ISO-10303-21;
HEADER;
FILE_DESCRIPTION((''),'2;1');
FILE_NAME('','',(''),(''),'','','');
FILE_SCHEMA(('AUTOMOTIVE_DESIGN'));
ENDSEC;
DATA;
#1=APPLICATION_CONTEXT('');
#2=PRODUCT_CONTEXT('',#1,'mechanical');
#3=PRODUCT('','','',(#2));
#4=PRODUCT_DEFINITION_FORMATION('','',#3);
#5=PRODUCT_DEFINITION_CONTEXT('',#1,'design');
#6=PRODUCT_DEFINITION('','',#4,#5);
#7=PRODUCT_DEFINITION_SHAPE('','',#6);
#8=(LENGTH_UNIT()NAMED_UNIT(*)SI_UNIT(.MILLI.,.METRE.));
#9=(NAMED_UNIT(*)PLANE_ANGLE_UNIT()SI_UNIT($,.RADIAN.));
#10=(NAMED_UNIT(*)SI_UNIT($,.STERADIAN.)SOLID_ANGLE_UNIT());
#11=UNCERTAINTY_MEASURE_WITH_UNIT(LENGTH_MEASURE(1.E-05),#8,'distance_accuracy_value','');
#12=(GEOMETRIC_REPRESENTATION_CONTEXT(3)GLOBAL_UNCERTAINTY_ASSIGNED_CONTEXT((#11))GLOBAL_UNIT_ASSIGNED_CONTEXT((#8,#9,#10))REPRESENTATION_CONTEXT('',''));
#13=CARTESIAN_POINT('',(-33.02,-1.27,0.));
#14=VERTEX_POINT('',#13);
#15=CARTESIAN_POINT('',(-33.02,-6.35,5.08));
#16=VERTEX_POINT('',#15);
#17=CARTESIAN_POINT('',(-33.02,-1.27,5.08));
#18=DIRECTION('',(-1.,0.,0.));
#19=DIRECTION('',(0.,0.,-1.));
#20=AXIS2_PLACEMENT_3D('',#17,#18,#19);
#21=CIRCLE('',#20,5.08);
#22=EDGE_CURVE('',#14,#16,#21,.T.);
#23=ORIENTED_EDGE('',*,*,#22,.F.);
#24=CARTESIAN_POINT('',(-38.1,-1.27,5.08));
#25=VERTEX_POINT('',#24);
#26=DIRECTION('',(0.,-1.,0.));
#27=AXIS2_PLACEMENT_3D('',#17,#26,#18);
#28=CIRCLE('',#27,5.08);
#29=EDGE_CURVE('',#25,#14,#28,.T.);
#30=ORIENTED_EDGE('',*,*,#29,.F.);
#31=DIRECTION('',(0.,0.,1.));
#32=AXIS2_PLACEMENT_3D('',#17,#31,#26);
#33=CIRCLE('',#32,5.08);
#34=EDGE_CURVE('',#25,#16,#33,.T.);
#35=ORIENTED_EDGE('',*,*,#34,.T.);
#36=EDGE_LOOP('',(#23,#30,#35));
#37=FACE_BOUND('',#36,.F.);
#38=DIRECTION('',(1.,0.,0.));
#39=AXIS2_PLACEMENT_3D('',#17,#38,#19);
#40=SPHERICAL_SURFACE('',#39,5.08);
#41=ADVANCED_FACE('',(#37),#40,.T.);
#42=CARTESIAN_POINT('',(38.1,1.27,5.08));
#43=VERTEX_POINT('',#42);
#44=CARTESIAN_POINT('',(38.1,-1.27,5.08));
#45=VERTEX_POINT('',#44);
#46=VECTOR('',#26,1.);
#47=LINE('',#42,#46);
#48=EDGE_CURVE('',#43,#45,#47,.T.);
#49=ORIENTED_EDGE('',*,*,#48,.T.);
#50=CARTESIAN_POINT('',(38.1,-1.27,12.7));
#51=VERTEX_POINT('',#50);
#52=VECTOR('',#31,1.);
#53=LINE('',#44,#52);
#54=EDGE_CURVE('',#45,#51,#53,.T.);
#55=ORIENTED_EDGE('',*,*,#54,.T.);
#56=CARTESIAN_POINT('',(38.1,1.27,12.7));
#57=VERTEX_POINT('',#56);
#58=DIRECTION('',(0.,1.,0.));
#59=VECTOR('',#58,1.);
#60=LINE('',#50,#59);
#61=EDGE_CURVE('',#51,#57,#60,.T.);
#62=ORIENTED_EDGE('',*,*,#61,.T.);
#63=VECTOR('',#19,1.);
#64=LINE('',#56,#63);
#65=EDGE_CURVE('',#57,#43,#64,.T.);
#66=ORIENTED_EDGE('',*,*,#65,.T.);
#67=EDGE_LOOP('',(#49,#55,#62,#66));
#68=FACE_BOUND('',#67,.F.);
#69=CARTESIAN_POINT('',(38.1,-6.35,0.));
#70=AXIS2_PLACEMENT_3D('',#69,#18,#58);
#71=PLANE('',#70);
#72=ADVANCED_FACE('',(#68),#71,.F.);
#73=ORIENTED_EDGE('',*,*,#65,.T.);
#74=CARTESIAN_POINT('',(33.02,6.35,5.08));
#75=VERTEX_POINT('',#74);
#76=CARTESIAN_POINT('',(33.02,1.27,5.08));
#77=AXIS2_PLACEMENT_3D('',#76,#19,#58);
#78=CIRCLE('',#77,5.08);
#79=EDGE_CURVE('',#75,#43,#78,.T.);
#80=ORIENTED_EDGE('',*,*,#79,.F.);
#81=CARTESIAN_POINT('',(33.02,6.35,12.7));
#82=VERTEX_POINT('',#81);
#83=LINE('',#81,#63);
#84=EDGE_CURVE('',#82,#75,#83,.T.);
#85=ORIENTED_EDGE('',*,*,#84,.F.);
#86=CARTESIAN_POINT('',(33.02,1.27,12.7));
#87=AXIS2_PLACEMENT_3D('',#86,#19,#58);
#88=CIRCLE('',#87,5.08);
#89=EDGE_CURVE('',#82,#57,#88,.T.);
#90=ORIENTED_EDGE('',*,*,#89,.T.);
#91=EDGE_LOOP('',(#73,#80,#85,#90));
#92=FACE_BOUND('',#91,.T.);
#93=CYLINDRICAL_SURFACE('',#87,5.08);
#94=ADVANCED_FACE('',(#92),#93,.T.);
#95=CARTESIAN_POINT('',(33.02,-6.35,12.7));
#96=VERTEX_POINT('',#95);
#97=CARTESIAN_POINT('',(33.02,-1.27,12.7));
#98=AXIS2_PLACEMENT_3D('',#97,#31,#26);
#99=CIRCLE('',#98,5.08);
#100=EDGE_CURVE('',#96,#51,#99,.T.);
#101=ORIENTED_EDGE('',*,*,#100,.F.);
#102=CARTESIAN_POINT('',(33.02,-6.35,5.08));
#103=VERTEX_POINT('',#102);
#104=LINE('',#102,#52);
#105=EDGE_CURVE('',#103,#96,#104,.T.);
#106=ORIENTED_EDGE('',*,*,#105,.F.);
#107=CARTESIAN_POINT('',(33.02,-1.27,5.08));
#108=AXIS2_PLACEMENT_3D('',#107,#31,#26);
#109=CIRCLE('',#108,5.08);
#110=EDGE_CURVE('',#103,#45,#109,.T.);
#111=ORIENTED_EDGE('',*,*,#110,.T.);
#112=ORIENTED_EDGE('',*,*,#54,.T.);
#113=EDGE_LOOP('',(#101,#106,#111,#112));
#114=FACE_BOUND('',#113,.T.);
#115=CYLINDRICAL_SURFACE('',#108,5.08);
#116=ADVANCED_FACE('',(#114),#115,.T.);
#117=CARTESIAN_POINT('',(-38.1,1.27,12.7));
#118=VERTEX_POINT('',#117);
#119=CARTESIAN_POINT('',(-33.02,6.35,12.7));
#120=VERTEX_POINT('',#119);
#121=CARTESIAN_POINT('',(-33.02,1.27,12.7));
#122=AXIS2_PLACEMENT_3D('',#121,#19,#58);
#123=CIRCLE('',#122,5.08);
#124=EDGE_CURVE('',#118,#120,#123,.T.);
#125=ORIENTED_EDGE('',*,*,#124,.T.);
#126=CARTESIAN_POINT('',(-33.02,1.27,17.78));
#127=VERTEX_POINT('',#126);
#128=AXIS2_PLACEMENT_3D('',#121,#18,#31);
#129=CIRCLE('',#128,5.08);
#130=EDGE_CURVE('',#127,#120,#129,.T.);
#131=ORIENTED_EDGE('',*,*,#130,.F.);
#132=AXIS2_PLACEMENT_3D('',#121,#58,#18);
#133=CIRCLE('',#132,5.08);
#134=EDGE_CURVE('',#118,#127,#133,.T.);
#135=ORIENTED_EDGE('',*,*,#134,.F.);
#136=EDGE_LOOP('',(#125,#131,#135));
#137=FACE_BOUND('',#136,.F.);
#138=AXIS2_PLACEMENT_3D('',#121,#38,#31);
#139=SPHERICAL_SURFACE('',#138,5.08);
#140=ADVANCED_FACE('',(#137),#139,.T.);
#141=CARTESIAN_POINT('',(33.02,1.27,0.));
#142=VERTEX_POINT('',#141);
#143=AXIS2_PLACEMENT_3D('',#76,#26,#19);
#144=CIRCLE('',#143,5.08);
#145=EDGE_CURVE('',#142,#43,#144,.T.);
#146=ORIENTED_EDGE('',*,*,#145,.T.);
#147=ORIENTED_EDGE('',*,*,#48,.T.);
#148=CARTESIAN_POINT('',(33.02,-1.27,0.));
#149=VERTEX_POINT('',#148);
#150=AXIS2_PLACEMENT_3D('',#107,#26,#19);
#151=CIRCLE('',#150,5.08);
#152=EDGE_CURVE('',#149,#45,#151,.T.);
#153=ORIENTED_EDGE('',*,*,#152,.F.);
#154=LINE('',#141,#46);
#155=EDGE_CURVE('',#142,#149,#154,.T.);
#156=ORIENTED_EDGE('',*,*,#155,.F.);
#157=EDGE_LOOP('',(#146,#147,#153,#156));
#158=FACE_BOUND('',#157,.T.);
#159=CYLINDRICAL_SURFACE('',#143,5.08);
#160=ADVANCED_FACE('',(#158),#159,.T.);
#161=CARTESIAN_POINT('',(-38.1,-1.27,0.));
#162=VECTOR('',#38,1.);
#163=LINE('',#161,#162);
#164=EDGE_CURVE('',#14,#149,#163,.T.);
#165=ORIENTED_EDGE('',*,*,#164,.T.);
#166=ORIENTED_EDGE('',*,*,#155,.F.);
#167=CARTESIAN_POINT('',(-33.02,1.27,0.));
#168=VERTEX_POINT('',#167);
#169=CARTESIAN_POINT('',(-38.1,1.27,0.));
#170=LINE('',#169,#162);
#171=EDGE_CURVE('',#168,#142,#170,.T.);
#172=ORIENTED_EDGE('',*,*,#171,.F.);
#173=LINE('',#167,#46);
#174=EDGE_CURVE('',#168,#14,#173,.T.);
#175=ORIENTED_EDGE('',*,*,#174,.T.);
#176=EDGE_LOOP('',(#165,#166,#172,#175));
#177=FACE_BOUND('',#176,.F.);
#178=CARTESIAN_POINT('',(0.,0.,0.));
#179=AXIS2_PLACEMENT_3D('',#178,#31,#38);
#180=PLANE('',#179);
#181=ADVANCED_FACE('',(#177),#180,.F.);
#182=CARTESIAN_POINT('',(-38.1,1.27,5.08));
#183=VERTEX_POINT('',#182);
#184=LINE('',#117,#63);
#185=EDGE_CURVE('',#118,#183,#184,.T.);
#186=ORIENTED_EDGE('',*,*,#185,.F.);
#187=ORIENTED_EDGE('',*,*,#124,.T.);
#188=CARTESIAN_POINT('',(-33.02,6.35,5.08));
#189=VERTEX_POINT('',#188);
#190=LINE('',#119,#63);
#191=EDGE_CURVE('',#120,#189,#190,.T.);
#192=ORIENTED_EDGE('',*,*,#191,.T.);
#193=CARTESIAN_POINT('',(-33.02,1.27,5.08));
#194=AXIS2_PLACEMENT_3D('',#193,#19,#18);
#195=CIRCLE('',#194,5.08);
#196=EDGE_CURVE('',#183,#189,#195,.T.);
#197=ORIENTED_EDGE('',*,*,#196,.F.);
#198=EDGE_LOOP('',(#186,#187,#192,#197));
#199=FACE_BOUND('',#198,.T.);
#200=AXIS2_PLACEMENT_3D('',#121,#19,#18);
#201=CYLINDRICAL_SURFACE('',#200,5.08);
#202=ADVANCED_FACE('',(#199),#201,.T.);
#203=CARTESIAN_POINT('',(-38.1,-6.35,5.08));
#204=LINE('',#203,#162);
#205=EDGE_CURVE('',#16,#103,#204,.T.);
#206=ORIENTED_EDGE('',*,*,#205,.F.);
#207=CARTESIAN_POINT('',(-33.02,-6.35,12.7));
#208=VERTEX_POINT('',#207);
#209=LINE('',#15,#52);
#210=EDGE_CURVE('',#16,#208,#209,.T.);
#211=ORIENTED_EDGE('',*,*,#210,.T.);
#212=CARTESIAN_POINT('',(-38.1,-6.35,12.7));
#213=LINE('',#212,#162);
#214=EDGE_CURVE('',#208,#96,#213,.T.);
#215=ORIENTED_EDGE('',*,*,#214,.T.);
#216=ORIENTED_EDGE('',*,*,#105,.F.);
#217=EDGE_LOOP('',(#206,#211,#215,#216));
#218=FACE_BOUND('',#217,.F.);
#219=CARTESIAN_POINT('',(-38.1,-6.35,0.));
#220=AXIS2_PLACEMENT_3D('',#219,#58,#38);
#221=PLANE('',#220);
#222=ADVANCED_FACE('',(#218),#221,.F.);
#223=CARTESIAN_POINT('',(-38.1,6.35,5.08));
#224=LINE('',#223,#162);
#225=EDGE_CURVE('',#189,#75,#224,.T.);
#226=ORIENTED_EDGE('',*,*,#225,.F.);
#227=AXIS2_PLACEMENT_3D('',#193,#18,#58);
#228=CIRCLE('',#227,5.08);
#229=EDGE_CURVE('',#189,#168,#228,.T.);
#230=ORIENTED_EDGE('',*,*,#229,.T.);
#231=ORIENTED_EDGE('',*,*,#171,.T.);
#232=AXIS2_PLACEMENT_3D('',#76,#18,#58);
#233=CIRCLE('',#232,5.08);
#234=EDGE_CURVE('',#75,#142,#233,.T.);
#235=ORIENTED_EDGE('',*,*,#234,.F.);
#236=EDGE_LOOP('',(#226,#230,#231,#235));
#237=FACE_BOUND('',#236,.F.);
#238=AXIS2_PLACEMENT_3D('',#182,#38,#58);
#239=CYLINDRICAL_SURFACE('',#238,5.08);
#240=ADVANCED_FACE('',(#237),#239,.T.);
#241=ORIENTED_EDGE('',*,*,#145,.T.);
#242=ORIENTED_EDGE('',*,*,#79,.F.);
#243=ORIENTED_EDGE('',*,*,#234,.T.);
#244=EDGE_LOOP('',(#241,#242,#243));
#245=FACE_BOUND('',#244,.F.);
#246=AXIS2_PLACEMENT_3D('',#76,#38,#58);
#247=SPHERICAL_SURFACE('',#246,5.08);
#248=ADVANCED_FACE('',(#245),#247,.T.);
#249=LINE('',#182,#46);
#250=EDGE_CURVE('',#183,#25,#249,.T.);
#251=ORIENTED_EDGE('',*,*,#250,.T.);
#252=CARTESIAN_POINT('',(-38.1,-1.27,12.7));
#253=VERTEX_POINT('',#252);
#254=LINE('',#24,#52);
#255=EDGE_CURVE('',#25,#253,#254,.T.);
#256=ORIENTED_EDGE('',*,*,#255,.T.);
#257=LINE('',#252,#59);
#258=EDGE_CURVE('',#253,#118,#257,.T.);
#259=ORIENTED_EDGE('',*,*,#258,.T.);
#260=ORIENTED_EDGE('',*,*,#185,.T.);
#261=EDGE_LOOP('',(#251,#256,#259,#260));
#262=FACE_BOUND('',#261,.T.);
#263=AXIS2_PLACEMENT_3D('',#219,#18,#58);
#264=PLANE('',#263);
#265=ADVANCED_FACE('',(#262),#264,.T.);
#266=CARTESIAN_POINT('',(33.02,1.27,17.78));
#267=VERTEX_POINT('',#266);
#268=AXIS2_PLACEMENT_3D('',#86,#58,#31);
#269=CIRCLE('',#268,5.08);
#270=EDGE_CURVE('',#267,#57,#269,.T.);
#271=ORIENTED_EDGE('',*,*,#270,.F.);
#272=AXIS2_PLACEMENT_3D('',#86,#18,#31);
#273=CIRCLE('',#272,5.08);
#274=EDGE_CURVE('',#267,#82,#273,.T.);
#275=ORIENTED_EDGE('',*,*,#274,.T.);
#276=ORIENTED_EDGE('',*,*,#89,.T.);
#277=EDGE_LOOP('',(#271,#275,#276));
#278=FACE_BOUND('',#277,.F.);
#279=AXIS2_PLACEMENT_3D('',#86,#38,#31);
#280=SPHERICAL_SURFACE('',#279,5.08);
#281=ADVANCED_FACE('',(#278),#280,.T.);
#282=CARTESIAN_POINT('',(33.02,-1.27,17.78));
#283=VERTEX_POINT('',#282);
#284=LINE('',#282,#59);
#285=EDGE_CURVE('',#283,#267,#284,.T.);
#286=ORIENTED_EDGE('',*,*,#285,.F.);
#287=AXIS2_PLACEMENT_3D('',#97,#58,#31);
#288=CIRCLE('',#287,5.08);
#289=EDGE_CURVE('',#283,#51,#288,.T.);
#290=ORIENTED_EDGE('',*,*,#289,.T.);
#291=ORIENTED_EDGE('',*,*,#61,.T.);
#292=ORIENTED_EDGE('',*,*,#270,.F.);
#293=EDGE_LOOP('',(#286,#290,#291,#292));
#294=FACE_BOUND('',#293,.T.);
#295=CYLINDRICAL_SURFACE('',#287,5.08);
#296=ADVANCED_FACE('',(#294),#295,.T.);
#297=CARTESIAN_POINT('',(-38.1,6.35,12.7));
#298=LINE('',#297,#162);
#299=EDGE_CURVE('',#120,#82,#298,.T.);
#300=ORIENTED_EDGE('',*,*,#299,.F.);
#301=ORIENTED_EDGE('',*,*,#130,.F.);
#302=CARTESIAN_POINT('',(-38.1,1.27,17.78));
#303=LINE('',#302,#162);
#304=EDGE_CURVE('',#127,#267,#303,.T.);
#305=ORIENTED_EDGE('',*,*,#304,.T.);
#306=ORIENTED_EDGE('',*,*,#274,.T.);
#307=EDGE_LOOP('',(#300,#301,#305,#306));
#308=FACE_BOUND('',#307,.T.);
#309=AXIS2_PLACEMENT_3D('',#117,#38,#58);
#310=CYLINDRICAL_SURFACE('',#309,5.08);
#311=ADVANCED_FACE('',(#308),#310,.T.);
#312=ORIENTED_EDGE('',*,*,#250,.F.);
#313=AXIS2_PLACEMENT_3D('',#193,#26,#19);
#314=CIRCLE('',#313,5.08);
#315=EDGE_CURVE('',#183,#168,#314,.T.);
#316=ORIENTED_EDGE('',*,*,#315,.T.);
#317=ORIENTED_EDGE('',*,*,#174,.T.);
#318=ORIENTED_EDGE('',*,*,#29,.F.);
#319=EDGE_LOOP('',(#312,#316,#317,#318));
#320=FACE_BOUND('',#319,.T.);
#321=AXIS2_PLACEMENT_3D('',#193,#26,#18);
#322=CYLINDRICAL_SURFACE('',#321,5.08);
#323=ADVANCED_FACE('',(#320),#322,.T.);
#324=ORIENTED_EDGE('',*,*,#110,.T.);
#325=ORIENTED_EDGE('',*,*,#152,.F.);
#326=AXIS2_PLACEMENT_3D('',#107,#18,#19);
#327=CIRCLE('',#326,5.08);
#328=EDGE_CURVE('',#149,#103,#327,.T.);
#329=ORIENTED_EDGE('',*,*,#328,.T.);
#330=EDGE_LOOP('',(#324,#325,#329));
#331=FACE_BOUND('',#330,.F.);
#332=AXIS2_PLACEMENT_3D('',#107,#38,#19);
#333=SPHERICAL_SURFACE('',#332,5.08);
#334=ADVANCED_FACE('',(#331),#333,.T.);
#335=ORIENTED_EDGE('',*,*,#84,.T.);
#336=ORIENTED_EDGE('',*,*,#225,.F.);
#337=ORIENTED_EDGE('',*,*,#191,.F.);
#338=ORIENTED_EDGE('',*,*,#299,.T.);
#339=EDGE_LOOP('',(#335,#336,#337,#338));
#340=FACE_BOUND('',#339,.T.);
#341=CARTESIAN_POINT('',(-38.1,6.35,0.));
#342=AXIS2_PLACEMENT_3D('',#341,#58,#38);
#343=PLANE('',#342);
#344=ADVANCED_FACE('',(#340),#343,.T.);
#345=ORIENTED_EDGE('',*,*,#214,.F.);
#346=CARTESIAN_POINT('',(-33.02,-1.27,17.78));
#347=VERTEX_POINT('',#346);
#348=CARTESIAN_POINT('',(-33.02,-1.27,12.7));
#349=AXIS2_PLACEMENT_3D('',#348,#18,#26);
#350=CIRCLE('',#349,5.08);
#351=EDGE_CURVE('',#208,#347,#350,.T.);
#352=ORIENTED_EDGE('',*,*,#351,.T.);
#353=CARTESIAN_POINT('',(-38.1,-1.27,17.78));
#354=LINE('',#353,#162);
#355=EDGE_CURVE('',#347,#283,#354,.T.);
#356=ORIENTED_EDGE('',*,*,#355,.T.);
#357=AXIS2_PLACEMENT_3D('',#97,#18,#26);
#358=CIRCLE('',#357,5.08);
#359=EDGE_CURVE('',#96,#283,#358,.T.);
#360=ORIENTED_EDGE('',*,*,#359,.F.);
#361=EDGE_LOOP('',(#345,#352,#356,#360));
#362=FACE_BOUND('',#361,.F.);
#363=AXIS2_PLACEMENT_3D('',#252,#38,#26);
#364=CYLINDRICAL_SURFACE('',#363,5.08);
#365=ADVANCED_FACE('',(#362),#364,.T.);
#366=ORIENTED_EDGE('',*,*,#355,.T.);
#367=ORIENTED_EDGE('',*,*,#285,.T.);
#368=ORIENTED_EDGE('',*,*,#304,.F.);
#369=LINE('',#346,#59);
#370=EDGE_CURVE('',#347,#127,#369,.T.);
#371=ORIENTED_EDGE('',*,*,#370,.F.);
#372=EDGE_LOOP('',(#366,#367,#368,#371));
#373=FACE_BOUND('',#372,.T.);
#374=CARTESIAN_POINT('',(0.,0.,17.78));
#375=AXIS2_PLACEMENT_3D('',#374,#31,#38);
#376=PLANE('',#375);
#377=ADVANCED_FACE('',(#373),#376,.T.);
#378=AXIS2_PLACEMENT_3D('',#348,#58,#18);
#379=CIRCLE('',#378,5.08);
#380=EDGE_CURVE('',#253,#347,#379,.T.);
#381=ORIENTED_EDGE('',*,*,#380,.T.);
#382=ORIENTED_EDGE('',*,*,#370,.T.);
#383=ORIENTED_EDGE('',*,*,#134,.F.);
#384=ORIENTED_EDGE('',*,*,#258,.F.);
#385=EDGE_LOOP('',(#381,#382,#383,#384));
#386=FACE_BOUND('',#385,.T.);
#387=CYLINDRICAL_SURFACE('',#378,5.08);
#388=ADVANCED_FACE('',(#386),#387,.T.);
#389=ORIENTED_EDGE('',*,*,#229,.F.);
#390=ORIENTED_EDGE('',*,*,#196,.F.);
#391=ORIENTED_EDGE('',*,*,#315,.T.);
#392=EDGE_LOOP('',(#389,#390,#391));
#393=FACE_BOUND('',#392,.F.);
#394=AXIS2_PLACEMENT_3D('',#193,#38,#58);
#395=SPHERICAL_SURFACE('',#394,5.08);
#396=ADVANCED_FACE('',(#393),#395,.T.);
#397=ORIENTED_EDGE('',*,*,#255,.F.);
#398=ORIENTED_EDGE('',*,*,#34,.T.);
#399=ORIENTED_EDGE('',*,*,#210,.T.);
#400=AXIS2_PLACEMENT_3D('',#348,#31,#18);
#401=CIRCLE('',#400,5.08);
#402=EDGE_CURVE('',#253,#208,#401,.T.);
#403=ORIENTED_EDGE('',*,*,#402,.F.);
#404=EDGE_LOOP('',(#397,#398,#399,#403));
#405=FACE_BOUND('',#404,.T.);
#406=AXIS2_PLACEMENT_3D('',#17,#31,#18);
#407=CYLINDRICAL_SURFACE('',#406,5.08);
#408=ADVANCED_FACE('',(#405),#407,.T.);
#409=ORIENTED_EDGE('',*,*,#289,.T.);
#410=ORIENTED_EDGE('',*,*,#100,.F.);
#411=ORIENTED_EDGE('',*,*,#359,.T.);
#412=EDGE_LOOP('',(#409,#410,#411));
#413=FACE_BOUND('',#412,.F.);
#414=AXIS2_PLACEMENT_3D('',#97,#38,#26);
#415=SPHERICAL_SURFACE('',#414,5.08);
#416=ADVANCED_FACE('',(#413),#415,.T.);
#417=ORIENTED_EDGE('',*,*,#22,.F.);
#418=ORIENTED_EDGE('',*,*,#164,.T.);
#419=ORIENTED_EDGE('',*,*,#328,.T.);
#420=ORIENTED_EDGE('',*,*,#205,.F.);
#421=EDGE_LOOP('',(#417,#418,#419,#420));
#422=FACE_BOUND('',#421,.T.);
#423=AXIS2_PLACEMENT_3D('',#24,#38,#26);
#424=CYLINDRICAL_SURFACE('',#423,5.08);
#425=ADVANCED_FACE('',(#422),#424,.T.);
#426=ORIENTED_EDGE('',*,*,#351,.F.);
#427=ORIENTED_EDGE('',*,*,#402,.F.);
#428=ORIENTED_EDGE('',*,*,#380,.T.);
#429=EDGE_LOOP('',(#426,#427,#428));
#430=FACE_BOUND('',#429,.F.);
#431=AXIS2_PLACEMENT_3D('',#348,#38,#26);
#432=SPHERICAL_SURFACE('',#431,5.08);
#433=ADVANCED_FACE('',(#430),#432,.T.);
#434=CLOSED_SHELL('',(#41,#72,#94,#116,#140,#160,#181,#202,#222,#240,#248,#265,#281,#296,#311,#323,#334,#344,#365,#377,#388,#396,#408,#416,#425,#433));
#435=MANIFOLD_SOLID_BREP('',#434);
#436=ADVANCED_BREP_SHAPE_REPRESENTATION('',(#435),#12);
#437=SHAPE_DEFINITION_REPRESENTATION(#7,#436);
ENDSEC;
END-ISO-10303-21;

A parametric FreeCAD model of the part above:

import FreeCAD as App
import Part
import Sketcher

V = App.Vector
Q = App.Units.Quantity


def edges_at(feature, points):
    """Names of the edges that pass closest to the given points."""
    edges = feature.Shape.Edges
    near = lambda p: min(range(len(edges)), key=lambda i: edges[i].distToShape(Part.Vertex(*p))[0])
    return sorted({f"Edge{near(p) + 1}" for p in points})

doc = App.newDocument("Part")
body = doc.addObject("PartDesign::Body", "Body")

# Sketch on XY plane
sketch1 = body.newObject("Sketcher::SketchObject", "Sketch")
sketch1.AttachmentSupport = (doc.getObject("XY_Plane"), [""])
sketch1.MapMode = "FlatFace"
sketch1.addGeometry(Part.LineSegment(V(-38, 6, 0), V(-38, -6, 0)), False)
sketch1.addGeometry(Part.LineSegment(V(-38, -6, 0), V(38, -6, 0)), False)
sketch1.addGeometry(Part.LineSegment(V(38, -6, 0), V(38, 6, 0)), False)
sketch1.addGeometry(Part.LineSegment(V(38, 6, 0), V(-38, 6, 0)), False)
sketch1.addConstraint(Sketcher.Constraint("Coincident", 0, 2, 1, 1))
sketch1.addConstraint(Sketcher.Constraint("Coincident", 1, 2, 2, 1))
sketch1.addConstraint(Sketcher.Constraint("Coincident", 2, 2, 3, 1))
sketch1.addConstraint(Sketcher.Constraint("Coincident", 3, 2, 0, 1))
sketch1.addConstraint(Sketcher.Constraint("Vertical", 0))
sketch1.addConstraint(Sketcher.Constraint("Horizontal", 1))
sketch1.addConstraint(Sketcher.Constraint("Vertical", 2))
sketch1.addConstraint(Sketcher.Constraint("Horizontal", 3))
sketch1.addConstraint(Sketcher.Constraint("Symmetric", 0, 2, 2, 2, -1, 1))
sketch1.addConstraint(Sketcher.Constraint("DistanceX", 1, 1, 1, 2, Q("3 in")))
sketch1.addConstraint(Sketcher.Constraint("DistanceY", 0, 2, 0, 1, Q("0.5 in")))
pad1 = body.newObject("PartDesign::Pad", "Pad")
pad1.Profile = sketch1
pad1.Length = Q("0.7 in")
doc.recompute()

fillet = body.newObject("PartDesign::Fillet", "Fillet")
fillet.Base = (pad1, edges_at(pad1, [
    (0, 6.35, 17.78),
    (0, -6.35, 17.78),
    (0, 6.35, 0),
    (0, -6.35, 0),
]))
fillet.Radius = Q("0.2 in")
doc.recompute()

fillet2 = body.newObject("PartDesign::Fillet", "Fillet001")
fillet2.Base = (fillet, edges_at(fillet, [
    (-38.1, 0, 17.78),
    (-38.1, -4.862, 16.292),
    (-38.1, 4.862, 16.292),
    (-38.1, 6.35, 8.89),
    (-38.1, -6.35, 8.89),
    (-38.1, -4.862, 1.488),
    (-38.1, 0, 0),
    (-38.1, 4.862, 1.488),
]))
fillet2.Radius = Q("0.2 in")
doc.recompute()

fillet3 = body.newObject("PartDesign::Fillet", "Fillet002")
fillet3.Base = (fillet2, edges_at(fillet2, [
    (38.1, -4.862, 16.292),
    (38.1, 0, 17.78),
    (38.1, 4.862, 16.292),
    (38.1, 6.35, 8.89),
    (38.1, 4.862, 1.488),
    (38.1, 0, 0),
    (38.1, -4.862, 1.488),
    (38.1, -6.35, 8.89),
]))
fillet3.Radius = Q("0.2 in")

doc.recompute()
